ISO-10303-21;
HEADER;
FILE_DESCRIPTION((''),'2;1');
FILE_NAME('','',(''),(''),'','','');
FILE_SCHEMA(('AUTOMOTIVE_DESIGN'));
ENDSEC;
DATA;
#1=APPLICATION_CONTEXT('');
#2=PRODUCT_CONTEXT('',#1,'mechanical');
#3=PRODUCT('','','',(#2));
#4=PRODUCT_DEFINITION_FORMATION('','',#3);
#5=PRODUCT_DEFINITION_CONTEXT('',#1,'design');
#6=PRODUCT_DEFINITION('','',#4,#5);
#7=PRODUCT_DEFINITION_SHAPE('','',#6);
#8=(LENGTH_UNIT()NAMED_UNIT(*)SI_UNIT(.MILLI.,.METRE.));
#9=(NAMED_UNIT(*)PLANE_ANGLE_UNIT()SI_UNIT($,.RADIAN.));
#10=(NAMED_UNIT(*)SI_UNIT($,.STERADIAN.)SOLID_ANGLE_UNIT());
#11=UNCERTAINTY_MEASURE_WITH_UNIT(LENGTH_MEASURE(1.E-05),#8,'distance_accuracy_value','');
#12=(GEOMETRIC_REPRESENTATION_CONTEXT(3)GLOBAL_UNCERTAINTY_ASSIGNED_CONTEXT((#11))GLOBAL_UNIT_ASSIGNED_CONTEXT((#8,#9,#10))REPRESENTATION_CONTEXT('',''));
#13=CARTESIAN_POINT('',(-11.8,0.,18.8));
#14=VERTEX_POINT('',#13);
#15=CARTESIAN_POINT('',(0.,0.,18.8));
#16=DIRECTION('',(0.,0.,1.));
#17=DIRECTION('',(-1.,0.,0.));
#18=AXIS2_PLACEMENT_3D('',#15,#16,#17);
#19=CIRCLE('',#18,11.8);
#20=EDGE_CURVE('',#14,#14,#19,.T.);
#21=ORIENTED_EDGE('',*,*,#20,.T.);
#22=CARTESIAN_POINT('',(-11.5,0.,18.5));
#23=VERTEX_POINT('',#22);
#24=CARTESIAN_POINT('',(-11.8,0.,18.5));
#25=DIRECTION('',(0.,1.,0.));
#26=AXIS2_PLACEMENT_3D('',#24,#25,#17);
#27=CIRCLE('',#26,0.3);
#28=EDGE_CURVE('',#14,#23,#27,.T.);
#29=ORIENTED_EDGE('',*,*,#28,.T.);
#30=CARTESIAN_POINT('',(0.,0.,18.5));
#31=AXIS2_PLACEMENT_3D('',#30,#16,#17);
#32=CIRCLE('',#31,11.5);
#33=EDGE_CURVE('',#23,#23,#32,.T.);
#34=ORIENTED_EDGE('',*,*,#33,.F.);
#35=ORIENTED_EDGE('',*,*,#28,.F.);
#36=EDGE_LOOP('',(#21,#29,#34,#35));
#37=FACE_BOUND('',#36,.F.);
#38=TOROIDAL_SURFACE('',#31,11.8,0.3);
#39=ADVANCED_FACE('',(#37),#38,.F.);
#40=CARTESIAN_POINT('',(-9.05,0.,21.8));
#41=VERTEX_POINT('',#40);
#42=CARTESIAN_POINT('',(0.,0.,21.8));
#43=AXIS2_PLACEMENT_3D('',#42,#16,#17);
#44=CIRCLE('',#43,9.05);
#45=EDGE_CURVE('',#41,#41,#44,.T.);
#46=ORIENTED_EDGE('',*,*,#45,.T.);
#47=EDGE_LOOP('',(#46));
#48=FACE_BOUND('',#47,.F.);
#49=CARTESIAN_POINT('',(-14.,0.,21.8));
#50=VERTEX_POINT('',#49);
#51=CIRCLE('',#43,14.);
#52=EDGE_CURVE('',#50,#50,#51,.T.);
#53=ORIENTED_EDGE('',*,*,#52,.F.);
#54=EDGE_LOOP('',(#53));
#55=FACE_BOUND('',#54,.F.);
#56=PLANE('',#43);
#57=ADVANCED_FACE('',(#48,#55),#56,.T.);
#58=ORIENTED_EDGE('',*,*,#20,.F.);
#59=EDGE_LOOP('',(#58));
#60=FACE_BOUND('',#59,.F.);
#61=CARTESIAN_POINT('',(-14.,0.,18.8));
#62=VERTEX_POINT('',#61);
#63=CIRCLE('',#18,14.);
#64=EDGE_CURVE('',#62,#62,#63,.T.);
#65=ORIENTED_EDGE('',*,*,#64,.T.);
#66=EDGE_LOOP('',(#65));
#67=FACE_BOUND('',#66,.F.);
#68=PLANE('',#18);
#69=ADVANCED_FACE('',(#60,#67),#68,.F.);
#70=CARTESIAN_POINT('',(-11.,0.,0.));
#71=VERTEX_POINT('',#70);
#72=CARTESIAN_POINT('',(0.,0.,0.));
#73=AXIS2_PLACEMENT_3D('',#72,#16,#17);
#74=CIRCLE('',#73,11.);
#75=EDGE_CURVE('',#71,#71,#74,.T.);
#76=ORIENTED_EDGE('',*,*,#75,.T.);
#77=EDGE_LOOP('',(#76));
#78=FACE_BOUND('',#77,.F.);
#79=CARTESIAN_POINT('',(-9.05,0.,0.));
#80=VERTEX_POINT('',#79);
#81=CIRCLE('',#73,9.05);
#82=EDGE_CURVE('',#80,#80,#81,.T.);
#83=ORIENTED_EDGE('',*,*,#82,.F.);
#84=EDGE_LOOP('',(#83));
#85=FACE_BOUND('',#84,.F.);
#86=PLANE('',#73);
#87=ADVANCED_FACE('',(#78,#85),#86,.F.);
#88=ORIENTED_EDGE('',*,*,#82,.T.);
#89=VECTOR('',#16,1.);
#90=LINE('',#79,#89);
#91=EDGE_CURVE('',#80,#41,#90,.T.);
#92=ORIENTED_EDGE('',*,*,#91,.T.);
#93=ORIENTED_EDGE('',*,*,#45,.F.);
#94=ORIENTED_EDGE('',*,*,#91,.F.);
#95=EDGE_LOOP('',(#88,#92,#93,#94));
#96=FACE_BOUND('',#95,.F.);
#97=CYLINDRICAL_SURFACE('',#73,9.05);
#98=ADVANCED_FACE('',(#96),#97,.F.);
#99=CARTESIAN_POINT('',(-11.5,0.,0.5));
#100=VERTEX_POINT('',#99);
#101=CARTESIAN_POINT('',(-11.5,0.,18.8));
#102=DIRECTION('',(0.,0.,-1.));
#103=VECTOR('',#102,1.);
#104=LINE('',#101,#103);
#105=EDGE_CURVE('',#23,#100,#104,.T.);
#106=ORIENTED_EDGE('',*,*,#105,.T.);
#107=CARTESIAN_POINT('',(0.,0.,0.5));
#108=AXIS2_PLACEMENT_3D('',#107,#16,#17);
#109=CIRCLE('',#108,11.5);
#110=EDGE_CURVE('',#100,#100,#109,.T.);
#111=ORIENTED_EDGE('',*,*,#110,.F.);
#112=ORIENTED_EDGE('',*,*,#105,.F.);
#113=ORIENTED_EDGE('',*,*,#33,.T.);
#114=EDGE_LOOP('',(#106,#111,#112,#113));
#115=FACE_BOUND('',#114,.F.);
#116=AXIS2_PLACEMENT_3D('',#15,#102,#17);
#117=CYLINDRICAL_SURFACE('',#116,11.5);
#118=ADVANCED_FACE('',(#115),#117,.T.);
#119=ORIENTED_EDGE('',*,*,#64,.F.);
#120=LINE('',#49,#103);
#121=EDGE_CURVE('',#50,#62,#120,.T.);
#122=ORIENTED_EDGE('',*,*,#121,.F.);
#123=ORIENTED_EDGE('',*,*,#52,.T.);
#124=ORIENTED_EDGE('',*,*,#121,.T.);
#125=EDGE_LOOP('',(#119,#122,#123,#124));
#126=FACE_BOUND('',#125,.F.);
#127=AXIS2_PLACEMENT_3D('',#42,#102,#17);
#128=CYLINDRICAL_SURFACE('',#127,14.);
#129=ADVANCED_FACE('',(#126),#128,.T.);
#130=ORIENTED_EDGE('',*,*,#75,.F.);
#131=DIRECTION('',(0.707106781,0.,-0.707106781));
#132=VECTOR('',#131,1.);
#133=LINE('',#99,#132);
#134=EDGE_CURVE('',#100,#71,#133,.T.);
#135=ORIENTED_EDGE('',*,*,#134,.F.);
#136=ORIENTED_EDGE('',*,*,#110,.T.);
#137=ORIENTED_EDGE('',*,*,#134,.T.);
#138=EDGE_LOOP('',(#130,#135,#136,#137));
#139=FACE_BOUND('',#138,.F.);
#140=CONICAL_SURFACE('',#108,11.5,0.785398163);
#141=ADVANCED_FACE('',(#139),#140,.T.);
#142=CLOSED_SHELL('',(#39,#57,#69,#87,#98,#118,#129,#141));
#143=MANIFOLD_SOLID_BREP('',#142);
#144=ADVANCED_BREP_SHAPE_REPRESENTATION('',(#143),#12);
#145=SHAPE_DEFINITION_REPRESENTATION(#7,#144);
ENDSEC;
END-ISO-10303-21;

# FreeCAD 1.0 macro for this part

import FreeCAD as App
import Part
import Sketcher
Q = App.Units.Quantity


def edges_at(feature, points):
    """Names of the edges that pass closest to the given points."""
    edges = feature.Shape.Edges
    near = lambda p: min(range(len(edges)), key=lambda i: edges[i].distToShape(Part.Vertex(*p))[0])
    return sorted({f"Edge{near(p) + 1}" for p in points})


def add_polygon(sketch, points):
    """Adds a closed chain of lines whose ends are joined by coincident constraints."""
    first, n = sketch.GeometryCount, len(points)
    for a, b in zip(points, points[1:] + points[:1]):
        sketch.addGeometry(Part.LineSegment(App.Vector(*a, 0), App.Vector(*b, 0)), False)
    for i in range(n):
        sketch.addConstraint(Sketcher.Constraint("Coincident", first + i, 2, first + (i + 1) % n, 1))

doc = App.newDocument("Part")
params = doc.addObject("Spreadsheet::Sheet", "Params")
for row, (alias, value) in enumerate([
    ("sketch1_height", "3 mm"),
    ("sketch1_width", "2.5 mm"),
    ("sketch1_height2", "18.8 mm"),
    ("sketch1_width2", "4.95 mm"),
    ("revolution_angle", "360 deg"),
    ("fillet_radius", "0.3 mm"),
    ("chamfer_size", "0.5 mm"),
], start=1):
    params.set(f"A{row}", alias)
    params.set(f"B{row}", "=" + value)
    params.setAlias(f"B{row}", alias)

body = doc.addObject("PartDesign::Body", "Body")

# Sketch on XZ plane
sketch1 = body.newObject("Sketcher::SketchObject", "Sketch")
sketch1.AttachmentSupport = (doc.getObject("XZ_Plane"), [""])
sketch1.MapMode = "FlatFace"
add_polygon(sketch1, [(-9.05, 21.8), (-14, 21.8), (-14, 18.8), (-11.5, 18.8), (-11.5, 0), (-9.05, 0)])  # lines 0-5
sketch1.addConstraint([
    Sketcher.Constraint("Horizontal", 0),
    Sketcher.Constraint("Vertical", 1),
    Sketcher.Constraint("Horizontal", 2),
    Sketcher.Constraint("Vertical", 3),
    Sketcher.Constraint("Horizontal", 4),
    Sketcher.Constraint("Vertical", 5),
    Sketcher.Constraint("PointOnObject", 3, 2, -1),
    Sketcher.Constraint("DistanceY", 1, 2, 1, 1, Q("3 mm")),
    Sketcher.Constraint("DistanceX", 2, 1, 2, 2, Q("2.5 mm")),
    Sketcher.Constraint("DistanceY", 3, 2, 3, 1, Q("18.8 mm")),
    Sketcher.Constraint("DistanceX", 0, 2, -1, 1, Q("14 mm")),
    Sketcher.Constraint("DistanceX", 0, 2, 0, 1, Q("4.95 mm")),
])
sketch1.setExpression("Constraints[13]", "Params.sketch1_height")
sketch1.setExpression("Constraints[14]", "Params.sketch1_width")
sketch1.setExpression("Constraints[15]", "Params.sketch1_height2")
sketch1.setExpression("Constraints[17]", "Params.sketch1_width2")
revolution = body.newObject("PartDesign::Revolution", "Revolution")
revolution.Profile = sketch1
revolution.ReferenceAxis = (sketch1, ["V_Axis"])
revolution.setExpression("Angle", "Params.revolution_angle")
doc.recompute()

fillet = body.newObject("PartDesign::Fillet", "Fillet")
fillet.Base = (revolution, edges_at(revolution, [(11.5, 0, 18.8)]))
fillet.setExpression("Radius", "Params.fillet_radius")
doc.recompute()

chamfer = body.newObject("PartDesign::Chamfer", "Chamfer")
chamfer.Base = (fillet, edges_at(fillet, [(11.5, 0, 0)]))
chamfer.setExpression("Size", "Params.chamfer_size")

doc.recompute()
